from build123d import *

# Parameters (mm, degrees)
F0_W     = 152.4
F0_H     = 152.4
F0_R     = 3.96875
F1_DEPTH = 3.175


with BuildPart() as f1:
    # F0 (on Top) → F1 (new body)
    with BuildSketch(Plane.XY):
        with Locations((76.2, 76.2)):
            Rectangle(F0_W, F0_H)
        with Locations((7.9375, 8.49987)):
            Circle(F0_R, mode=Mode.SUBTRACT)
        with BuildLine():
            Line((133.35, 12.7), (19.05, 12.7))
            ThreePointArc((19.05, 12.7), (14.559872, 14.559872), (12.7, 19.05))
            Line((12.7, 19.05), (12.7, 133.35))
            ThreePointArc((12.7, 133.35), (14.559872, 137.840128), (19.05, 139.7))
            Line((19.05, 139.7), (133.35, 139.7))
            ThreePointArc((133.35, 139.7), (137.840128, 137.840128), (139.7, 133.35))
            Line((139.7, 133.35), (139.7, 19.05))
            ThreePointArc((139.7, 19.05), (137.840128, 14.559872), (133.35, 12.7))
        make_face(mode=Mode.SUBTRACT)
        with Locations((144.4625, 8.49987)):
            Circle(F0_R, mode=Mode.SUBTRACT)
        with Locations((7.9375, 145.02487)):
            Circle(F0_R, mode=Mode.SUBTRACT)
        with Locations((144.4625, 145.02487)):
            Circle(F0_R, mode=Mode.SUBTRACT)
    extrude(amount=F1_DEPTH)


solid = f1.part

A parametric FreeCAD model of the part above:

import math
import FreeCAD as App
import Part
import Sketcher
from FreeCAD import Vector
Q = App.Units.Quantity


def add_polygon(sketch, points):
    """Adds a closed chain of lines whose ends are joined by coincident constraints."""
    first, n = sketch.GeometryCount, len(points)
    for a, b in zip(points, points[1:] + points[:1]):
        sketch.addGeometry(Part.LineSegment(App.Vector(*a, 0), App.Vector(*b, 0)), False)
    for i in range(n):
        sketch.addConstraint(Sketcher.Constraint("Coincident", first + i, 2, first + (i + 1) % n, 1))

doc = App.newDocument("Part")
body = doc.addObject("PartDesign::Body", "Body")

# Sketch on XY plane
sketch1 = body.newObject("Sketcher::SketchObject", "Sketch")
sketch1.AttachmentSupport = (doc.getObject("XY_Plane"), [""])
sketch1.MapMode = "FlatFace"
add_polygon(sketch1, [(0, 152.4), (0, 0), (152.4, 0), (152.4, 152.4)])  # lines 0-3
sketch1.addGeometry(Part.Circle(Vector(7.9375, 8.49987, 0), Vector(0, 0, 1), 3.96875), False)  # 4
sketch1.addGeometry(Part.ArcOfCircle(Part.Circle(Vector(133.35, 19.05, 0), Vector(0, 0, 1), 6.35), math.radians(-89.999998), math.radians(-0.000002)), False)  # 5
sketch1.addGeometry(Part.LineSegment(Vector(133.35, 12.7, 0), Vector(19.05, 12.7, 0)), False)  # 6
sketch1.addGeometry(Part.ArcOfCircle(Part.Circle(Vector(19.05, 19.05, 0), Vector(0, 0, 1), 6.35), math.radians(-179.999998), math.radians(-90.000002)), False)  # 7
sketch1.addGeometry(Part.LineSegment(Vector(12.7, 19.05, 0), Vector(12.7, 133.35, 0)), False)  # 8
sketch1.addGeometry(Part.ArcOfCircle(Part.Circle(Vector(19.05, 133.35, 0), Vector(0, 0, 1), 6.35), math.radians(90.000002), math.radians(179.999998)), False)  # 9
sketch1.addGeometry(Part.LineSegment(Vector(19.05, 139.7, 0), Vector(133.35, 139.7, 0)), False)  # 10
sketch1.addGeometry(Part.ArcOfCircle(Part.Circle(Vector(133.35, 133.35, 0), Vector(0, 0, 1), 6.35), math.radians(0.000002), math.radians(89.999998)), False)  # 11
sketch1.addGeometry(Part.LineSegment(Vector(139.7, 133.35, 0), Vector(139.7, 19.05, 0)), False)  # 12
sketch1.addGeometry(Part.Circle(Vector(144.4625, 8.49987, 0), Vector(0, 0, 1), 3.96875), False)  # 13
sketch1.addGeometry(Part.Circle(Vector(7.9375, 145.02487, 0), Vector(0, 0, 1), 3.96875), False)  # 14
sketch1.addGeometry(Part.Circle(Vector(144.4625, 145.02487, 0), Vector(0, 0, 1), 3.96875), False)  # 15
sketch1.addConstraint([
    Sketcher.Constraint("Tangent", 5, 1, 6, 1),
    Sketcher.Constraint("Tangent", 6, 2, 7, 2),
    Sketcher.Constraint("Tangent", 7, 1, 8, 1),
    Sketcher.Constraint("Tangent", 8, 2, 9, 2),
    Sketcher.Constraint("Tangent", 9, 1, 10, 1),
    Sketcher.Constraint("Tangent", 10, 2, 11, 2),
    Sketcher.Constraint("Tangent", 11, 1, 12, 1),
    Sketcher.Constraint("Tangent", 12, 2, 5, 2),
    Sketcher.Constraint("Vertical", 0),
    Sketcher.Constraint("Horizontal", 1),
    Sketcher.Constraint("Vertical", 2),
    Sketcher.Constraint("Horizontal", 3),
    Sketcher.Constraint("Horizontal", 6),
    Sketcher.Constraint("Vertical", 8),
    Sketcher.Constraint("Horizontal", 10),
    Sketcher.Constraint("Vertical", 12),
    Sketcher.Constraint("Coincident", 0, 2, -1, 1),
    Sketcher.Constraint("Equal", 5, 7),
    Sketcher.Constraint("Equal", 7, 9),
    Sketcher.Constraint("Equal", 9, 11),
    Sketcher.Constraint("Equal", 4, 13),
    Sketcher.Constraint("Equal", 13, 14),
    Sketcher.Constraint("Equal", 14, 15),
    Sketcher.Constraint("Horizontal", 4, 3, 13, 3),
    Sketcher.Constraint("Horizontal", 14, 3, 15, 3),
    Sketcher.Constraint("Vertical", 4, 3, 14, 3),
    Sketcher.Constraint("Vertical", 13, 3, 15, 3),
    Sketcher.Constraint("Equal", 3, 0),
    Sketcher.Constraint("Equal", 10, 8),
    Sketcher.Constraint("DistanceX", 1, 1, 1, 2, Q("6 in")),
    Sketcher.Constraint("Radius", 5, Q("0.25 in")),
    Sketcher.Constraint("Diameter", 4, Q("0.3125 in")),
    Sketcher.Constraint("DistanceX", 6, 2, 6, 1, Q("4.5 in")),
    Sketcher.Constraint("DistanceY", -1, 1, 5, 1, Q("0.5 in")),
    Sketcher.Constraint("DistanceX", -1, 1, 7, 1, Q("0.5 in")),
    Sketcher.Constraint("DistanceX", -1, 1, 4, 3, Q("0.3125 in")),
    Sketcher.Constraint("DistanceX", -1, 1, 13, 3, Q("5.6875 in")),
    Sketcher.Constraint("DistanceY", 4, 3, 14, 3, Q("5.375 in")),
    Sketcher.Constraint("DistanceY", -1, 1, 4, 3, Q("8.49987 mm")),
])
pad1 = body.newObject("PartDesign::Pad", "Pad")
pad1.Profile = sketch1
pad1.Length = Q("0.125 in")

doc.recompute()
